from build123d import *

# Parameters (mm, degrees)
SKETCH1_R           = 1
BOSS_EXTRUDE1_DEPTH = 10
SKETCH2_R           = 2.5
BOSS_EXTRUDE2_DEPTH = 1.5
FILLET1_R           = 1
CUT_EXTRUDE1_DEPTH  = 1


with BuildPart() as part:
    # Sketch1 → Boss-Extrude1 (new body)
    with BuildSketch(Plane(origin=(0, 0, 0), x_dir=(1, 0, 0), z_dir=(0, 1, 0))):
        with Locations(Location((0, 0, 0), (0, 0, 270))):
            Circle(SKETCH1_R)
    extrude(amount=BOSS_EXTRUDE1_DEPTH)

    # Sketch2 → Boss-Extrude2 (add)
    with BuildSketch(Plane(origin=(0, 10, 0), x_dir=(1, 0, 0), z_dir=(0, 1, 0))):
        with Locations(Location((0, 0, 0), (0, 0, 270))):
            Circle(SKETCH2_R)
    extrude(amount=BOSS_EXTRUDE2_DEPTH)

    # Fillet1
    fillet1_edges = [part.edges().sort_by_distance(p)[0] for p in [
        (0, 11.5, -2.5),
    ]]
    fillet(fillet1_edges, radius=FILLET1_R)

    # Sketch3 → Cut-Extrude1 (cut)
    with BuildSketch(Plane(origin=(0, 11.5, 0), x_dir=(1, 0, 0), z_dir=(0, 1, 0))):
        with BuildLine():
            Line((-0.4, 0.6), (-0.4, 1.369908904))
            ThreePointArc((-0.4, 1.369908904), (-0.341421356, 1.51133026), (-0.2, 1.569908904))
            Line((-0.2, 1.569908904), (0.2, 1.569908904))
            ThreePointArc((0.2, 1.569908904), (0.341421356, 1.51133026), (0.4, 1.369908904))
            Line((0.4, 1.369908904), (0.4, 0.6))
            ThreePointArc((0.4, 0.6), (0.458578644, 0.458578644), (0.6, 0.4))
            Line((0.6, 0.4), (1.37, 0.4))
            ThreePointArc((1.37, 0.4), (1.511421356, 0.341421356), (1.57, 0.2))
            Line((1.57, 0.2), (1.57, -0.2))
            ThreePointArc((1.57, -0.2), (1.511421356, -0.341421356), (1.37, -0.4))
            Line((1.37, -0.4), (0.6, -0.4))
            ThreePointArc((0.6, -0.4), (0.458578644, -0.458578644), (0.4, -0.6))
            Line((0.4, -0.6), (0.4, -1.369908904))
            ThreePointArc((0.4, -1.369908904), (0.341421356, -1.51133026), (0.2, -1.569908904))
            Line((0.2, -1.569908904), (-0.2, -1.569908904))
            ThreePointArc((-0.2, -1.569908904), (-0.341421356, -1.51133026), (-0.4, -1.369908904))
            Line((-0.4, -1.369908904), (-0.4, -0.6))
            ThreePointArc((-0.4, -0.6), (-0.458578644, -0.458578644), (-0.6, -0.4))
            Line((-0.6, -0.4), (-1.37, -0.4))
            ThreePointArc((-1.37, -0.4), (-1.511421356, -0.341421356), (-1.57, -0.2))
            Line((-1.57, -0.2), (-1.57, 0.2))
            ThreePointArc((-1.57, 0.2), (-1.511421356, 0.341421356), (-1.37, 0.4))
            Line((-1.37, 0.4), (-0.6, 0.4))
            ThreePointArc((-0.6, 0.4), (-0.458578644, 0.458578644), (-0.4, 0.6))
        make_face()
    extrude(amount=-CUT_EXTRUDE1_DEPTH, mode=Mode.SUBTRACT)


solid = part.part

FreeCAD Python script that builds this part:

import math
import FreeCAD as App
import Part
import Sketcher


def edges_at(feature, points):
    """Names of the edges that pass closest to the given points."""
    edges = feature.Shape.Edges
    near = lambda p: min(range(len(edges)), key=lambda i: edges[i].distToShape(Part.Vertex(*p))[0])
    return sorted({f"Edge{near(p) + 1}" for p in points})

doc = App.newDocument("Part")
body = doc.addObject("PartDesign::Body", "Body")

sketch1 = doc.addObject("Sketcher::SketchObject", "Sketch")
body.addObject(sketch1)
sketch1.AttachmentSupport = (doc.XZ_Plane, [""])
sketch1.MapMode = "FlatFace"
sketch1.addGeometry(Part.Circle(App.Vector(0, 0, 0), App.Vector(0, 0, 1), 1), False)
sketch1.addConstraint(Sketcher.Constraint("Coincident", 0, 3, -1, 1))
sketch1.addConstraint(Sketcher.Constraint("Diameter", 0, 2.0))
pad1 = doc.addObject("PartDesign::Pad", "Pad")
body.addObject(pad1)
pad1.Profile = sketch1
pad1.Length = 10
pad1.Reversed = True

sketch2 = doc.addObject("Sketcher::SketchObject", "Sketch001")
body.addObject(sketch2)
sketch2.AttachmentSupport = (doc.XZ_Plane, [""])
sketch2.MapMode = "FlatFace"
sketch2.AttachmentOffset = App.Placement(App.Vector(0, 0, -10), App.Rotation())
sketch2.addGeometry(Part.Circle(App.Vector(0, 0, 0), App.Vector(0, 0, 1), 2.5), False)
sketch2.addConstraint(Sketcher.Constraint("Coincident", 0, 3, -1, 1))
sketch2.addConstraint(Sketcher.Constraint("Diameter", 0, 5.0))
pad2 = doc.addObject("PartDesign::Pad", "Pad001")
body.addObject(pad2)
pad2.Profile = sketch2
pad2.Length = 1.5
pad2.Reversed = True
doc.recompute()

fillet = doc.addObject("PartDesign::Fillet", "Fillet")
body.addObject(fillet)
fillet.Base = (pad2, edges_at(pad2, [(0, 11.5, -2.5)]))
fillet.Radius = 1

sketch3 = doc.addObject("Sketcher::SketchObject", "Sketch002")
body.addObject(sketch3)
sketch3.AttachmentSupport = (doc.XZ_Plane, [""])
sketch3.MapMode = "FlatFace"
sketch3.AttachmentOffset = App.Placement(App.Vector(0, 0, -11.5), App.Rotation())
sketch3.addGeometry(Part.LineSegment(App.Vector(-0.4, -1.37, 0), App.Vector(-0.4, -0.6, 0)), False)
sketch3.addGeometry(Part.ArcOfCircle(Part.Circle(App.Vector(-0.6, -0.6, 0), App.Vector(0, 0, 1), 0.2), math.radians(0), math.radians(90)), False)
sketch3.addGeometry(Part.LineSegment(App.Vector(-0.6, -0.4, 0), App.Vector(-1.37, -0.4, 0)), False)
sketch3.addGeometry(Part.ArcOfCircle(Part.Circle(App.Vector(-1.37, -0.2, 0), App.Vector(0, 0, 1), 0.2), math.radians(-180), math.radians(-90)), False)
sketch3.addGeometry(Part.LineSegment(App.Vector(-1.57, -0.2, 0), App.Vector(-1.57, 0.2, 0)), False)
sketch3.addGeometry(Part.ArcOfCircle(Part.Circle(App.Vector(-1.37, 0.2, 0), App.Vector(0, 0, 1), 0.2), math.radians(90), math.radians(180)), False)
sketch3.addGeometry(Part.LineSegment(App.Vector(-1.37, 0.4, 0), App.Vector(-0.6, 0.4, 0)), False)
sketch3.addGeometry(Part.ArcOfCircle(Part.Circle(App.Vector(-0.6, 0.6, 0), App.Vector(0, 0, 1), 0.2), math.radians(-90), math.radians(0)), False)
sketch3.addGeometry(Part.LineSegment(App.Vector(-0.4, 0.6, 0), App.Vector(-0.4, 1.37, 0)), False)
sketch3.addGeometry(Part.ArcOfCircle(Part.Circle(App.Vector(-0.2, 1.37, 0), App.Vector(0, 0, 1), 0.2), math.radians(90), math.radians(180)), False)
sketch3.addGeometry(Part.LineSegment(App.Vector(-0.2, 1.57, 0), App.Vector(0.2, 1.57, 0)), False)
sketch3.addGeometry(Part.ArcOfCircle(Part.Circle(App.Vector(0.2, 1.37, 0), App.Vector(0, 0, 1), 0.2), math.radians(0), math.radians(90)), False)
sketch3.addGeometry(Part.LineSegment(App.Vector(0.4, 1.37, 0), App.Vector(0.4, 0.6, 0)), False)
sketch3.addGeometry(Part.ArcOfCircle(Part.Circle(App.Vector(0.6, 0.6, 0), App.Vector(0, 0, 1), 0.2), math.radians(-180), math.radians(-90)), False)
sketch3.addGeometry(Part.LineSegment(App.Vector(0.6, 0.4, 0), App.Vector(1.37, 0.4, 0)), False)
sketch3.addGeometry(Part.ArcOfCircle(Part.Circle(App.Vector(1.37, 0.2, 0), App.Vector(0, 0, 1), 0.2), math.radians(0), math.radians(90)), False)
sketch3.addGeometry(Part.LineSegment(App.Vector(1.57, 0.2, 0), App.Vector(1.57, -0.2, 0)), False)
sketch3.addGeometry(Part.ArcOfCircle(Part.Circle(App.Vector(1.37, -0.2, 0), App.Vector(0, 0, 1), 0.2), math.radians(-90), math.radians(0)), False)
sketch3.addGeometry(Part.LineSegment(App.Vector(1.37, -0.4, 0), App.Vector(0.6, -0.4, 0)), False)
sketch3.addGeometry(Part.ArcOfCircle(Part.Circle(App.Vector(0.6, -0.6, 0), App.Vector(0, 0, 1), 0.2), math.radians(90), math.radians(180)), False)
sketch3.addGeometry(Part.LineSegment(App.Vector(0.4, -0.6, 0), App.Vector(0.4, -1.37, 0)), False)
sketch3.addGeometry(Part.ArcOfCircle(Part.Circle(App.Vector(0.2, -1.37, 0), App.Vector(0, 0, 1), 0.2), math.radians(-90), math.radians(0)), False)
sketch3.addGeometry(Part.LineSegment(App.Vector(0.2, -1.57, 0), App.Vector(-0.2, -1.57, 0)), False)
sketch3.addGeometry(Part.ArcOfCircle(Part.Circle(App.Vector(-0.2, -1.37, 0), App.Vector(0, 0, 1), 0.2), math.radians(-180), math.radians(-90)), False)
sketch3.addConstraint(Sketcher.Constraint("Tangent", 0, 2, 1, 1))
sketch3.addConstraint(Sketcher.Constraint("Tangent", 1, 2, 2, 1))
sketch3.addConstraint(Sketcher.Constraint("Tangent", 2, 2, 3, 2))
sketch3.addConstraint(Sketcher.Constraint("Tangent", 3, 1, 4, 1))
sketch3.addConstraint(Sketcher.Constraint("Tangent", 4, 2, 5, 2))
sketch3.addConstraint(Sketcher.Constraint("Tangent", 5, 1, 6, 1))
sketch3.addConstraint(Sketcher.Constraint("Tangent", 6, 2, 7, 1))
sketch3.addConstraint(Sketcher.Constraint("Tangent", 7, 2, 8, 1))
sketch3.addConstraint(Sketcher.Constraint("Tangent", 8, 2, 9, 2))
sketch3.addConstraint(Sketcher.Constraint("Tangent", 9, 1, 10, 1))
sketch3.addConstraint(Sketcher.Constraint("Tangent", 10, 2, 11, 2))
sketch3.addConstraint(Sketcher.Constraint("Tangent", 11, 1, 12, 1))
sketch3.addConstraint(Sketcher.Constraint("Tangent", 12, 2, 13, 1))
sketch3.addConstraint(Sketcher.Constraint("Tangent", 13, 2, 14, 1))
sketch3.addConstraint(Sketcher.Constraint("Tangent", 14, 2, 15, 2))
sketch3.addConstraint(Sketcher.Constraint("Tangent", 15, 1, 16, 1))
sketch3.addConstraint(Sketcher.Constraint("Tangent", 16, 2, 17, 2))
sketch3.addConstraint(Sketcher.Constraint("Tangent", 17, 1, 18, 1))
sketch3.addConstraint(Sketcher.Constraint("Tangent", 18, 2, 19, 1))
sketch3.addConstraint(Sketcher.Constraint("Tangent", 19, 2, 20, 1))
sketch3.addConstraint(Sketcher.Constraint("Tangent", 20, 2, 21, 2))
sketch3.addConstraint(Sketcher.Constraint("Tangent", 21, 1, 22, 1))
sketch3.addConstraint(Sketcher.Constraint("Tangent", 22, 2, 23, 2))
sketch3.addConstraint(Sketcher.Constraint("Tangent", 23, 1, 0, 1))
sketch3.addConstraint(Sketcher.Constraint("Vertical", 0))
sketch3.addConstraint(Sketcher.Constraint("Horizontal", 2))
sketch3.addConstraint(Sketcher.Constraint("Vertical", 4))
sketch3.addConstraint(Sketcher.Constraint("Horizontal", 6))
sketch3.addConstraint(Sketcher.Constraint("Vertical", 8))
sketch3.addConstraint(Sketcher.Constraint("Horizontal", 10))
sketch3.addConstraint(Sketcher.Constraint("Vertical", 12))
sketch3.addConstraint(Sketcher.Constraint("Horizontal", 14))
sketch3.addConstraint(Sketcher.Constraint("Vertical", 16))
sketch3.addConstraint(Sketcher.Constraint("Horizontal", 18))
sketch3.addConstraint(Sketcher.Constraint("Vertical", 20))
sketch3.addConstraint(Sketcher.Constraint("Horizontal", 22))
sketch3.addConstraint(Sketcher.Constraint("Equal", 1, 3))
sketch3.addConstraint(Sketcher.Constraint("Equal", 3, 5))
sketch3.addConstraint(Sketcher.Constraint("Equal", 5, 7))
sketch3.addConstraint(Sketcher.Constraint("Equal", 7, 9))
sketch3.addConstraint(Sketcher.Constraint("Equal", 9, 11))
sketch3.addConstraint(Sketcher.Constraint("Equal", 11, 13))
sketch3.addConstraint(Sketcher.Constraint("Equal", 13, 15))
sketch3.addConstraint(Sketcher.Constraint("Equal", 15, 17))
sketch3.addConstraint(Sketcher.Constraint("Equal", 17, 19))
sketch3.addConstraint(Sketcher.Constraint("Equal", 19, 21))
sketch3.addConstraint(Sketcher.Constraint("Equal", 21, 23))
sketch3.addConstraint(Sketcher.Constraint("Symmetric", 1, 3, 13, 3, -1, 1))
sketch3.addConstraint(Sketcher.Constraint("Symmetric", 5, 3, 17, 3, -1, 1))
sketch3.addConstraint(Sketcher.Constraint("Symmetric", 9, 3, 21, 3, -1, 1))
sketch3.addConstraint(Sketcher.Constraint("Symmetric", 7, 3, 13, 3, -2))
sketch3.addConstraint(Sketcher.Constraint("Equal", 22, 4))
sketch3.addConstraint(Sketcher.Constraint("Radius", 1, 0.2))
sketch3.addConstraint(Sketcher.Constraint("DistanceX", 10, 1, 10, 2, 0.4))
sketch3.addConstraint(Sketcher.Constraint("DistanceX", 2, 2, 2, 1, 0.77))
sketch3.addConstraint(Sketcher.Constraint("DistanceY", 0, 1, 0, 2, 0.769909))
pocket1 = doc.addObject("PartDesign::Pocket", "Pocket")
body.addObject(pocket1)
pocket1.Profile = sketch3
pocket1.Length = 1
pocket1.Reversed = True

doc.recompute()
